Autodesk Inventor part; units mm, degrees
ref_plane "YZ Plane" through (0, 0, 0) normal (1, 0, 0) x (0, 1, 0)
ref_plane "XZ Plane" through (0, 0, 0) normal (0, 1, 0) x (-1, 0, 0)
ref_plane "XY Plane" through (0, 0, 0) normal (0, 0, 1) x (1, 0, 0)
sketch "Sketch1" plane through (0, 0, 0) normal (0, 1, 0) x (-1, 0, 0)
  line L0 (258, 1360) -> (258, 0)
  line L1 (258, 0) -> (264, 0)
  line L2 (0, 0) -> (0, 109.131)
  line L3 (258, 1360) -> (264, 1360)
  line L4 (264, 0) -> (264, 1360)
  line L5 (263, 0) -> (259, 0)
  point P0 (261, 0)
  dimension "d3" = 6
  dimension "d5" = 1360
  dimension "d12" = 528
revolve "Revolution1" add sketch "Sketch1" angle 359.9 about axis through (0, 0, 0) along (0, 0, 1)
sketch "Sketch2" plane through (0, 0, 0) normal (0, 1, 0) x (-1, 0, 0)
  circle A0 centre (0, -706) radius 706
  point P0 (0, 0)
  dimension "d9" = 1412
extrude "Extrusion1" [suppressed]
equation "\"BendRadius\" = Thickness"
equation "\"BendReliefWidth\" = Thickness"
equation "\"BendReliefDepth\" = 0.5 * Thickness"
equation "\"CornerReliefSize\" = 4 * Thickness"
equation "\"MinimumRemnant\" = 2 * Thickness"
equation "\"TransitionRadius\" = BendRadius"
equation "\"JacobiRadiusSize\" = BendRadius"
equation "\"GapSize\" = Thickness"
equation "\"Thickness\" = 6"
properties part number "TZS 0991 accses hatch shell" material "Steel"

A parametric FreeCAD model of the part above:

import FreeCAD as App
import Part
import Sketcher
from FreeCAD import Vector


def add_polygon(sketch, points):
    """Adds a closed chain of lines whose ends are joined by coincident constraints."""
    first, n = sketch.GeometryCount, len(points)
    for a, b in zip(points, points[1:] + points[:1]):
        sketch.addGeometry(Part.LineSegment(App.Vector(*a, 0), App.Vector(*b, 0)), False)
    for i in range(n):
        sketch.addConstraint(Sketcher.Constraint("Coincident", first + i, 2, first + (i + 1) % n, 1))

doc = App.newDocument("Part")
body = doc.addObject("PartDesign::Body", "Body")

# Sketch on XZ plane
sketch1 = body.newObject("Sketcher::SketchObject", "Sketch")
sketch1.AttachmentSupport = (doc.getObject("XZ_Plane"), [""])
sketch1.MapMode = "FlatFace"
add_polygon(sketch1, [(-264, 1360), (-258, 1360), (-258, 0), (-264, 0)])  # lines 0-3
sketch1.addConstraint([
    Sketcher.Constraint("Horizontal", 0),
    Sketcher.Constraint("Vertical", 1),
    Sketcher.Constraint("Horizontal", 2),
    Sketcher.Constraint("Vertical", 3),
    Sketcher.Constraint("PointOnObject", 1, 2, -1),
    Sketcher.Constraint("DistanceX", 0, 1, 0, 2, 6.0),
    Sketcher.Constraint("DistanceY", 1, 2, 1, 1, 1360.0),
    Sketcher.Constraint("DistanceX", 0, 2, -1, 1, 258.0),
])
revolution = body.newObject("PartDesign::Revolution", "Revolution")
revolution.Profile = sketch1
revolution.ReferenceAxis = (sketch1, ["V_Axis"])
revolution.Angle = 359.9

doc.recompute()
